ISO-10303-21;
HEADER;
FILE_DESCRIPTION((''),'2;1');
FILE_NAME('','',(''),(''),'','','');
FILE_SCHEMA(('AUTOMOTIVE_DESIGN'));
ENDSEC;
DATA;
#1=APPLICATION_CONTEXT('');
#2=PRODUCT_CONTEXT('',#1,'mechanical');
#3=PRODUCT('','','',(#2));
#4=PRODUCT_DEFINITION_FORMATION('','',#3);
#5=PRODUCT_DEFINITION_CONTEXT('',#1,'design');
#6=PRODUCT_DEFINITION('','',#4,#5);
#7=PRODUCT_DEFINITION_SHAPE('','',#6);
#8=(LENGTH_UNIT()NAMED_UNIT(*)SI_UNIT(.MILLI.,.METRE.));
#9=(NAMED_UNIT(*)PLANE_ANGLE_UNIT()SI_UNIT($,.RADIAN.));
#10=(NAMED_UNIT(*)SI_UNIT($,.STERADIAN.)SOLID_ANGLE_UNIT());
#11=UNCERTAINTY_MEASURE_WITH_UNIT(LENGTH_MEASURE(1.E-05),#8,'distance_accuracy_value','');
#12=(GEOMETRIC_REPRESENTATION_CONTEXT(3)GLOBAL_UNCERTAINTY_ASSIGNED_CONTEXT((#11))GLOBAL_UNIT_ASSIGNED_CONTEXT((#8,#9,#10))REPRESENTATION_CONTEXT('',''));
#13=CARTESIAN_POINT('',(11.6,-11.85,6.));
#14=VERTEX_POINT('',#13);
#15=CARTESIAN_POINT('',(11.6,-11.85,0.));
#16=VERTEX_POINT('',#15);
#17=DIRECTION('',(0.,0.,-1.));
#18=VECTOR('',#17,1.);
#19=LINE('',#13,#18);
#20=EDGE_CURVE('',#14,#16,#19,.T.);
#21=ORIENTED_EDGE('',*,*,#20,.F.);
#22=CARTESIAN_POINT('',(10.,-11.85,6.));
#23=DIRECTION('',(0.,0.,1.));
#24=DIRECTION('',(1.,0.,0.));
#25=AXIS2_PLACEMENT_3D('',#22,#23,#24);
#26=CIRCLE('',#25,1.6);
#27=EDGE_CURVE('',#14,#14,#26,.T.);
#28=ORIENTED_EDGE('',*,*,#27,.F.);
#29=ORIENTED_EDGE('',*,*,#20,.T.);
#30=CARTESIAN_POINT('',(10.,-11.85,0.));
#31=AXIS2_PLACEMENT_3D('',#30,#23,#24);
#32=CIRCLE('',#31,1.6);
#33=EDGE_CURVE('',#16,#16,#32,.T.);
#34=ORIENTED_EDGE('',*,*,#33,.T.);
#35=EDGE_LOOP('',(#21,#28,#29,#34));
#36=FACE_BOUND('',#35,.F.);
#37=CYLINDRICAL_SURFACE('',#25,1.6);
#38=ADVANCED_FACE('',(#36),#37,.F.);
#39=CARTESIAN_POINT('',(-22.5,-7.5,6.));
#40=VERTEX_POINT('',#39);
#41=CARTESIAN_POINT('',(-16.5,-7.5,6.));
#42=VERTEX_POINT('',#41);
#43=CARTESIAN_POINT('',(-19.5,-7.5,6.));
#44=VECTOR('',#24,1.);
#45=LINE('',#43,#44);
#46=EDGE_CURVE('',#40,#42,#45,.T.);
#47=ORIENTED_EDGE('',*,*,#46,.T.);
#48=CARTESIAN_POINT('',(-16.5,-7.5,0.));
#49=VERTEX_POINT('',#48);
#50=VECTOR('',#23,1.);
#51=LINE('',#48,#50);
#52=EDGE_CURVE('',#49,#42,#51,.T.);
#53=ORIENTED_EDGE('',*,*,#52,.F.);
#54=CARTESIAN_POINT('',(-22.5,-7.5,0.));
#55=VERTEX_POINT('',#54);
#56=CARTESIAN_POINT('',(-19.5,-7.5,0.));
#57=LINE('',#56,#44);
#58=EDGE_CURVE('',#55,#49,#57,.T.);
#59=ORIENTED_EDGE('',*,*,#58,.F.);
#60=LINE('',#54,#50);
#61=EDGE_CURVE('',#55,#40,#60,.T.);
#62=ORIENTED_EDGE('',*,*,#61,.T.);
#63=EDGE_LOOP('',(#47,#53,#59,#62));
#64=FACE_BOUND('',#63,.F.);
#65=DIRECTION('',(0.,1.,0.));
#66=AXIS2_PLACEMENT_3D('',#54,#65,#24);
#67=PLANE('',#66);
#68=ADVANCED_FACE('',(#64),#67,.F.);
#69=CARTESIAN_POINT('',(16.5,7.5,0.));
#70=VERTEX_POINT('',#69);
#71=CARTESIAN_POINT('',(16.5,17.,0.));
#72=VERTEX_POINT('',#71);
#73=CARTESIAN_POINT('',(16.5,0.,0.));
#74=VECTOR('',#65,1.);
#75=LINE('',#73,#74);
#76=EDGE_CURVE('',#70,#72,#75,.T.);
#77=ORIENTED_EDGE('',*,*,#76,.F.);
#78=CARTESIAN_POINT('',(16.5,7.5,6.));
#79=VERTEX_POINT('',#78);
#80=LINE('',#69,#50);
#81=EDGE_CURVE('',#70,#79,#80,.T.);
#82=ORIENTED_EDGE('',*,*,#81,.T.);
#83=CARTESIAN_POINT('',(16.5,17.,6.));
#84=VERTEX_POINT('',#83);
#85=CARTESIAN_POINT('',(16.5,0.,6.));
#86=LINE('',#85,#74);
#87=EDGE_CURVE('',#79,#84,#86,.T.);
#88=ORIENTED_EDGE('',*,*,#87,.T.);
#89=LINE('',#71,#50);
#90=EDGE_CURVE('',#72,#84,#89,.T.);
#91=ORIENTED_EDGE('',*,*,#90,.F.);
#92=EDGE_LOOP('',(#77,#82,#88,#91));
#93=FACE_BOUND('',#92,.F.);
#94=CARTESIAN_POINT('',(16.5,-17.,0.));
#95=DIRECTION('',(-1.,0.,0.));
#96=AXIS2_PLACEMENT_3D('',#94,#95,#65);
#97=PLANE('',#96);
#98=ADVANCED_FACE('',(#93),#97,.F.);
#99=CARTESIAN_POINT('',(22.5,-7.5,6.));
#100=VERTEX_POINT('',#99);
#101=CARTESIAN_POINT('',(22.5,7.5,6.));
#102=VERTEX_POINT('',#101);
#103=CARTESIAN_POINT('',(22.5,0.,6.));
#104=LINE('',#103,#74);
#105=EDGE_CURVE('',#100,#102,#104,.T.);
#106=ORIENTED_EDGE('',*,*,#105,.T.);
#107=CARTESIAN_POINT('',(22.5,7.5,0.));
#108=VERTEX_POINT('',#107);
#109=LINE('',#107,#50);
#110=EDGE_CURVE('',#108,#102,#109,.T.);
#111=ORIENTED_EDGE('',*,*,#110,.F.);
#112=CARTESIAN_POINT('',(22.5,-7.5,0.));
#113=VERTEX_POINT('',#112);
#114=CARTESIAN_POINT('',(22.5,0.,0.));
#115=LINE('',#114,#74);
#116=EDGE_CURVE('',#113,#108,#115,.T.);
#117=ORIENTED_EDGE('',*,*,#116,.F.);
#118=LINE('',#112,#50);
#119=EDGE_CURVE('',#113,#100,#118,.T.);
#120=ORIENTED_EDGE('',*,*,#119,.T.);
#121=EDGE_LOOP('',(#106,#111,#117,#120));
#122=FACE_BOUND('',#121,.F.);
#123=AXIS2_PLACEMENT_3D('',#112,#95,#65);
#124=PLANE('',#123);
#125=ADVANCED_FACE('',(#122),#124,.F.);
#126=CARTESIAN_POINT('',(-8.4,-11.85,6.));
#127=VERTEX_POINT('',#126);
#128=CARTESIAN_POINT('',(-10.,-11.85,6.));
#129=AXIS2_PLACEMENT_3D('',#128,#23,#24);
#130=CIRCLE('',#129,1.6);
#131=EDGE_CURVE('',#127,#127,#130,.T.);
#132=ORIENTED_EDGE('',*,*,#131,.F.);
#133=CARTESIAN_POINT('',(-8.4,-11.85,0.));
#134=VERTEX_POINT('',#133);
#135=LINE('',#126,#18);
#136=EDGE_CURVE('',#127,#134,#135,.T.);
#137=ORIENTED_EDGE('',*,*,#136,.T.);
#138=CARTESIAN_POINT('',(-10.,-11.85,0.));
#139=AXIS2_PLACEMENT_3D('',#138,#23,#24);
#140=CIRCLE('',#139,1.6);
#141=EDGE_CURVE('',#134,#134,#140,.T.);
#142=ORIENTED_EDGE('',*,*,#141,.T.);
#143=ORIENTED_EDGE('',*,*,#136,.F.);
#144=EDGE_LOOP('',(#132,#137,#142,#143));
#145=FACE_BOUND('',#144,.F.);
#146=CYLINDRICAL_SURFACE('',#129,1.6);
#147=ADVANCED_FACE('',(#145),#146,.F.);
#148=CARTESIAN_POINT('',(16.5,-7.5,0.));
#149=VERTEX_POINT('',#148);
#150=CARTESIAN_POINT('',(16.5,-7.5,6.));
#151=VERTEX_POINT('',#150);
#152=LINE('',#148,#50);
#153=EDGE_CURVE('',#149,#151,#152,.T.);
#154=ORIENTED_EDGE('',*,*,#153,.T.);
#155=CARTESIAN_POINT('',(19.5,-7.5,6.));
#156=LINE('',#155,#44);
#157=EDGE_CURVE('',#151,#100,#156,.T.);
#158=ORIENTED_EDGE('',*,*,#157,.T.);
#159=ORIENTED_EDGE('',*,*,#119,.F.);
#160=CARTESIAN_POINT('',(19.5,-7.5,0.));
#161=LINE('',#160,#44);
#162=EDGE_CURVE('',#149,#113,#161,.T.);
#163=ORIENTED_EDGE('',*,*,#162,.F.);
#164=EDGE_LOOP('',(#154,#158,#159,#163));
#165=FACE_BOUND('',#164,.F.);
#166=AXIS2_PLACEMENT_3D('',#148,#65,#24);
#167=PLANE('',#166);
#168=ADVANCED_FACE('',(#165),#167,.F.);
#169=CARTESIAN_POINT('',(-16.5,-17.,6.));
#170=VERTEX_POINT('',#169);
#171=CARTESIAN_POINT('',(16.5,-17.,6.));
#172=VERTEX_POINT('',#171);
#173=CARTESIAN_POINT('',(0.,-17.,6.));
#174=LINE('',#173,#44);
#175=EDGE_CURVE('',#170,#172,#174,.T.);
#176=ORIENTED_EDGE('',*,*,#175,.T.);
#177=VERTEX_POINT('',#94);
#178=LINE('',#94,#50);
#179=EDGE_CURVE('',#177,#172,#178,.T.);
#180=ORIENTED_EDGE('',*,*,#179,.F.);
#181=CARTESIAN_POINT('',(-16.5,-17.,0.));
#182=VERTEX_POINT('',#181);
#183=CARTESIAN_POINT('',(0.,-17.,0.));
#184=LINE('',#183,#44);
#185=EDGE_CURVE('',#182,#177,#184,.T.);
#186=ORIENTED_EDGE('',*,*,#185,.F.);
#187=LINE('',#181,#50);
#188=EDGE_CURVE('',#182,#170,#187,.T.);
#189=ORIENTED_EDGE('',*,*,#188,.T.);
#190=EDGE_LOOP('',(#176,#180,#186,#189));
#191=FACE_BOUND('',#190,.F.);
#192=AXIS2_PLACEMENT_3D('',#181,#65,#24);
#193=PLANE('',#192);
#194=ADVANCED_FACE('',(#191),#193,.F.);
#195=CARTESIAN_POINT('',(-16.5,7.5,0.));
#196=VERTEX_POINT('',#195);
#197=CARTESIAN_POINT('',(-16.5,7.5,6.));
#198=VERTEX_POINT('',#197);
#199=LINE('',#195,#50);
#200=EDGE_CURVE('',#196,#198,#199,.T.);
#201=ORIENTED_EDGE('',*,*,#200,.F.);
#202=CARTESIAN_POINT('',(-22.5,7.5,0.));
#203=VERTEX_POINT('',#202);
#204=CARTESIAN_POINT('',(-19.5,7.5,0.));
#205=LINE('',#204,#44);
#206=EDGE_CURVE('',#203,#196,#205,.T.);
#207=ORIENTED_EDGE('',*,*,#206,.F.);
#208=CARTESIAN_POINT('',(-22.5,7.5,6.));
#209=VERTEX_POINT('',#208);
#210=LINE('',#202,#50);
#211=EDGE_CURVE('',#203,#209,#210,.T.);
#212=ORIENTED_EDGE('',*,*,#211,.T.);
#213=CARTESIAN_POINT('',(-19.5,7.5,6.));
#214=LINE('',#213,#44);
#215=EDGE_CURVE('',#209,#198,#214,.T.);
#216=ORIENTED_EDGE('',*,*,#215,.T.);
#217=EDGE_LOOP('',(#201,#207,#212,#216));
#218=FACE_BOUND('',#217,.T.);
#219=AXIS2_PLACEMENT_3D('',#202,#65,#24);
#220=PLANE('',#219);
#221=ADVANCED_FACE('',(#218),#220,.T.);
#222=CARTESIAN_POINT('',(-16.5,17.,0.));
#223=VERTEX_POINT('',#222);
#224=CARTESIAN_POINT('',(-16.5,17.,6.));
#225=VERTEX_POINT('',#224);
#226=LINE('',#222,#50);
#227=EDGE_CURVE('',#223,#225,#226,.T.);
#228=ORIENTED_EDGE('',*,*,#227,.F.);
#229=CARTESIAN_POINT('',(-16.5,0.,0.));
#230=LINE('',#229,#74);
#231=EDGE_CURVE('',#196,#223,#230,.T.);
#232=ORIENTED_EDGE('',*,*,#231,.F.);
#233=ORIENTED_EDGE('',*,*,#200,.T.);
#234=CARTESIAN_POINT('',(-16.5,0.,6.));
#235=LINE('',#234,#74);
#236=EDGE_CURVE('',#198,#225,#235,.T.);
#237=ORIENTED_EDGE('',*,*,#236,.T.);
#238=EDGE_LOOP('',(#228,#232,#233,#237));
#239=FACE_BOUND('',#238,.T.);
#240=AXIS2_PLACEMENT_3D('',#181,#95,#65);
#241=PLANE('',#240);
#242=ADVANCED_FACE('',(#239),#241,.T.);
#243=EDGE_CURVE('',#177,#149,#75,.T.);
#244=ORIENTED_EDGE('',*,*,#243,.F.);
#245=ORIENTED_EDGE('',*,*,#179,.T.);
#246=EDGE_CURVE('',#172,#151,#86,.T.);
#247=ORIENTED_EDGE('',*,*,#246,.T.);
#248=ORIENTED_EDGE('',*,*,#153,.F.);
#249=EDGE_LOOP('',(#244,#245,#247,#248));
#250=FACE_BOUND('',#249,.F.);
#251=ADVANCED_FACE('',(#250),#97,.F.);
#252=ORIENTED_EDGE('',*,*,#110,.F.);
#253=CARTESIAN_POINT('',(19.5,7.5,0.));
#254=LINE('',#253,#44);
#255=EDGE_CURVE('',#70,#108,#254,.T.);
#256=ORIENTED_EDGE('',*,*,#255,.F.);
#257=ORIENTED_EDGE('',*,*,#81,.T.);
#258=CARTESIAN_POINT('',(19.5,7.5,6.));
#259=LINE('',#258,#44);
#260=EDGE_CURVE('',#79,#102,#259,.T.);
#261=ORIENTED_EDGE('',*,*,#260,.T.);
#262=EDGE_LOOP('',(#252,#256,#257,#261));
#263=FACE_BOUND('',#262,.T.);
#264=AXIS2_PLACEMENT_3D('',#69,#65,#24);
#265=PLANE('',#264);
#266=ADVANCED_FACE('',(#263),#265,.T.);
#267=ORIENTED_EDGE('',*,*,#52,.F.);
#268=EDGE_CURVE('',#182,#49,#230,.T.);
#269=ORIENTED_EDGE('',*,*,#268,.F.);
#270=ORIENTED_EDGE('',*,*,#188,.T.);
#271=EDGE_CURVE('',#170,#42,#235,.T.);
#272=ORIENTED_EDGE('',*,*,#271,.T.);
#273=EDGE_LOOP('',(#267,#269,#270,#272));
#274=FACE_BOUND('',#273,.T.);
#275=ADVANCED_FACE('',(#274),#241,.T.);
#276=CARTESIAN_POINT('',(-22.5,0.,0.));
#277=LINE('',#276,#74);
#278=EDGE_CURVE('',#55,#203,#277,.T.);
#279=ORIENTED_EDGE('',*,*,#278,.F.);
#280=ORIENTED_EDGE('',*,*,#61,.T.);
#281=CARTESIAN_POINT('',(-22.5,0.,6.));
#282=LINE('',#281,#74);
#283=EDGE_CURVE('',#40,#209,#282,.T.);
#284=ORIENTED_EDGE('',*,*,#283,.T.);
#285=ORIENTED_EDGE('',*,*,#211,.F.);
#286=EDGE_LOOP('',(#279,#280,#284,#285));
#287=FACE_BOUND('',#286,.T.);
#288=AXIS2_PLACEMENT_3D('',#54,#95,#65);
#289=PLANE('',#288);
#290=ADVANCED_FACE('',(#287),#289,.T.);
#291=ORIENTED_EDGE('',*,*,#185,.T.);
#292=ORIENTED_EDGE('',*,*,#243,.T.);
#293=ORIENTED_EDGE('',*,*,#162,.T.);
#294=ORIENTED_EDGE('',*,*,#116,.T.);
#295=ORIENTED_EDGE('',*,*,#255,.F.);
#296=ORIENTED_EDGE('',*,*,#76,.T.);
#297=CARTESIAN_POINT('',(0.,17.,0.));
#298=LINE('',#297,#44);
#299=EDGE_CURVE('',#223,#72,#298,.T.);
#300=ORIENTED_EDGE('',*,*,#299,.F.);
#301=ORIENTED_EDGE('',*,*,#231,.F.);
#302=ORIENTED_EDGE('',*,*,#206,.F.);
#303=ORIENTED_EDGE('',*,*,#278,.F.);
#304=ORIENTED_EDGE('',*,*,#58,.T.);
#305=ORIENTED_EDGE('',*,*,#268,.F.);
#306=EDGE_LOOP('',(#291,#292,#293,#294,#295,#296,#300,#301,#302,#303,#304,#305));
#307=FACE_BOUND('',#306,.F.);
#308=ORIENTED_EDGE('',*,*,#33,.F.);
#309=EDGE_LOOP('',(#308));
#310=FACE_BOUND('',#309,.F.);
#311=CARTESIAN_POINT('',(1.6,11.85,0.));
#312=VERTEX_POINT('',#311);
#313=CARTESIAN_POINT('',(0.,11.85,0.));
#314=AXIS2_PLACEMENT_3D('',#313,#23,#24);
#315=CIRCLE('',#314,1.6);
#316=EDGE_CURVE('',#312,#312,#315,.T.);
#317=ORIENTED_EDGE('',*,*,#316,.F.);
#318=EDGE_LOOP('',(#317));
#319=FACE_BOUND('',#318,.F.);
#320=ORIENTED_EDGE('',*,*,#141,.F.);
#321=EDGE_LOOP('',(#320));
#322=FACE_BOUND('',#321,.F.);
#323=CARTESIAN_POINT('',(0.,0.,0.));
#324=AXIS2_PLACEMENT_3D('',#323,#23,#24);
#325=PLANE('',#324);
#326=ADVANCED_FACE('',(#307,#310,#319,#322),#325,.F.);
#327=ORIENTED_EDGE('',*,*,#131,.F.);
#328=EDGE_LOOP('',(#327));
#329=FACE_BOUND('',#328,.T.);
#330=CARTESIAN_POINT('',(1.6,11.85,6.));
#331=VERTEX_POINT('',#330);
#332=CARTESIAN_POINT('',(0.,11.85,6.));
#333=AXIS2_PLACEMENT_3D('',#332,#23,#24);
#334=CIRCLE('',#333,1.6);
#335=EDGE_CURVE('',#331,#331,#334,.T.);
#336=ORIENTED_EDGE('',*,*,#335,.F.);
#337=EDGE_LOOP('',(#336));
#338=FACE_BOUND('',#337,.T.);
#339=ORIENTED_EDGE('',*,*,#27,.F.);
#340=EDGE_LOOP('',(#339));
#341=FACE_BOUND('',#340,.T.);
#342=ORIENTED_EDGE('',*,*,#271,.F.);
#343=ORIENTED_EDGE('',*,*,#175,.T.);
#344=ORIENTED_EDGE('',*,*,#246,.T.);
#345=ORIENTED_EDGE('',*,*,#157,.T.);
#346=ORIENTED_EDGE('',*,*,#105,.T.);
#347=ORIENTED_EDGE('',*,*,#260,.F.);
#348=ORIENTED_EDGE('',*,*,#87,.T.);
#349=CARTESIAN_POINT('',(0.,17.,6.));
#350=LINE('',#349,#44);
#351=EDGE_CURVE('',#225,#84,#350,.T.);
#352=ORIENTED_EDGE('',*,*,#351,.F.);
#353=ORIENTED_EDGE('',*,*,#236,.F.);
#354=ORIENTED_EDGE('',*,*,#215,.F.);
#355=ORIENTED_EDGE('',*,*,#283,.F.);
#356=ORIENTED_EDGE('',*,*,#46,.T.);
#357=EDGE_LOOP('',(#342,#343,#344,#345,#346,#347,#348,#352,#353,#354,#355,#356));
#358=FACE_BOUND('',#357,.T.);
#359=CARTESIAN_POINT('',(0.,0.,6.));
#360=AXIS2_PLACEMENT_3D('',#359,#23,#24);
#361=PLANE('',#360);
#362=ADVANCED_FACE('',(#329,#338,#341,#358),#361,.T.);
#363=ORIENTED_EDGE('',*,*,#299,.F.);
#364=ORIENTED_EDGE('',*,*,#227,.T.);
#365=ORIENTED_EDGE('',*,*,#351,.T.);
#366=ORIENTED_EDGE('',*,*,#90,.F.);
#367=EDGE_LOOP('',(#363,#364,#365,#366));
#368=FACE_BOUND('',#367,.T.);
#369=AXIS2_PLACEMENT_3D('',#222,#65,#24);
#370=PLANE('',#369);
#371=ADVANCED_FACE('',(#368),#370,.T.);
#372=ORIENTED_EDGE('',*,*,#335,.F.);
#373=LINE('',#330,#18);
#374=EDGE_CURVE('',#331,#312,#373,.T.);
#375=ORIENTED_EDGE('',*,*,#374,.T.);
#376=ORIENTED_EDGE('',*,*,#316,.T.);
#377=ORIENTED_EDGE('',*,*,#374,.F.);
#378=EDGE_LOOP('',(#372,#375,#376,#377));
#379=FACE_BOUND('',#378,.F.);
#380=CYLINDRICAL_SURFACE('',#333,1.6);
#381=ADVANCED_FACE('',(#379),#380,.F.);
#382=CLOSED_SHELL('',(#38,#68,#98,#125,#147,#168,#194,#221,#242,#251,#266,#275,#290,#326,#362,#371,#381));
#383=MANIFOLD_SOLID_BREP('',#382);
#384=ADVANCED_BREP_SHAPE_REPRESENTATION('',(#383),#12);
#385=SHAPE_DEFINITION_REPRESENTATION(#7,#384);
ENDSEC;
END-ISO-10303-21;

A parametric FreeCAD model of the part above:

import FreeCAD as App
import Part
import Sketcher

V = App.Vector


def add_polygon(sketch, points):
    """Adds a closed chain of lines whose ends are joined by coincident constraints."""
    first, n = sketch.GeometryCount, len(points)
    for a, b in zip(points, points[1:] + points[:1]):
        sketch.addGeometry(Part.LineSegment(App.Vector(*a, 0), App.Vector(*b, 0)), False)
    for i in range(n):
        sketch.addConstraint(Sketcher.Constraint("Coincident", first + i, 2, first + (i + 1) % n, 1))

doc = App.newDocument("Part")
body = doc.addObject("PartDesign::Body", "Body")

sketch1 = body.newObject("Sketcher::SketchObject", "Sketch")
sketch1.AttachmentSupport = (doc.getObject("XY_Plane"), [""])
sketch1.MapMode = "FlatFace"
add_polygon(sketch1, [(-16, 17), (-16, -17), (16, -17), (16, 17)])
sketch1.addConstraint(Sketcher.Constraint("Vertical", 0))
sketch1.addConstraint(Sketcher.Constraint("Horizontal", 1))
sketch1.addConstraint(Sketcher.Constraint("Vertical", 2))
sketch1.addConstraint(Sketcher.Constraint("Horizontal", 3))
sketch1.addConstraint(Sketcher.Constraint("Symmetric", 0, 2, 2, 2, -1, 1))
sketch1.addConstraint(Sketcher.Constraint("DistanceX", 1, 1, 1, 2, 33.0))
sketch1.addConstraint(Sketcher.Constraint("DistanceY", 0, 2, 0, 1, 34.0))
pad1 = body.newObject("PartDesign::Pad", "Pad")
pad1.Profile = sketch1
pad1.Length = 6

sketch2 = body.newObject("Sketcher::SketchObject", "Sketch001")
sketch2.AttachmentSupport = (doc.getObject("XY_Plane"), [""])
sketch2.MapMode = "FlatFace"
add_polygon(sketch2, [(-22, 8), (-22, -8), (-16, -8), (-16, 8)])
add_polygon(sketch2, [(16, 8), (16, -8), (22, -8), (22, 8)])
sketch2.addConstraint(Sketcher.Constraint("Vertical", 0))
sketch2.addConstraint(Sketcher.Constraint("Horizontal", 1))
sketch2.addConstraint(Sketcher.Constraint("Vertical", 2))
sketch2.addConstraint(Sketcher.Constraint("Horizontal", 3))
sketch2.addConstraint(Sketcher.Constraint("Vertical", 4))
sketch2.addConstraint(Sketcher.Constraint("Horizontal", 5))
sketch2.addConstraint(Sketcher.Constraint("Vertical", 6))
sketch2.addConstraint(Sketcher.Constraint("Horizontal", 7))
sketch2.addConstraint(Sketcher.Constraint("Symmetric", 2, 2, 4, 2, -1, 1))
sketch2.addConstraint(Sketcher.Constraint("Symmetric", 0, 2, 6, 2, -1, 1))
sketch2.addConstraint(Sketcher.Constraint("Horizontal", 1, 2, 4, 2))
sketch2.addConstraint(Sketcher.Constraint("DistanceX", 1, 1, 1, 2, 6.0))
sketch2.addConstraint(Sketcher.Constraint("DistanceY", 0, 2, 0, 1, 15.0))
sketch2.addConstraint(Sketcher.Constraint("DistanceX", 1, 2, 4, 2, 33.0))
pad2 = body.newObject("PartDesign::Pad", "Pad001")
pad2.Profile = sketch2
pad2.Length = 6

sketch3 = body.newObject("Sketcher::SketchObject", "Sketch002")
sketch3.AttachmentSupport = (doc.getObject("XY_Plane"), [""])
sketch3.MapMode = "FlatFace"
sketch3.AttachmentOffset = App.Placement(V(0, 0, 6), App.Rotation())
sketch3.addGeometry(Part.Circle(V(-10, -11.8, 0), V(0, 0, 1), 1.6), False)
sketch3.addGeometry(Part.Circle(V(10, -11.8, 0), V(0, 0, 1), 1.6), False)
sketch3.addGeometry(Part.Circle(V(0, 11.8, 0), V(0, 0, 1), 1.6), False)
sketch3.addConstraint(Sketcher.Constraint("Equal", 0, 1))
sketch3.addConstraint(Sketcher.Constraint("Equal", 1, 2))
sketch3.addConstraint(Sketcher.Constraint("Symmetric", 0, 3, 1, 3, -2))
sketch3.addConstraint(Sketcher.Constraint("PointOnObject", 2, 3, -2))
sketch3.addConstraint(Sketcher.Constraint("Diameter", 0, 3.2))
sketch3.addConstraint(Sketcher.Constraint("DistanceX", 0, 3, -1, 1, 10.0))
sketch3.addConstraint(Sketcher.Constraint("DistanceY", 0, 3, 2, 3, 23.7))
sketch3.addConstraint(Sketcher.Constraint("DistanceY", 0, 3, -1, 1, 11.85))
pocket1 = body.newObject("PartDesign::Pocket", "Pocket")
pocket1.Profile = sketch3
pocket1.Type = "ThroughAll"

doc.recompute()
